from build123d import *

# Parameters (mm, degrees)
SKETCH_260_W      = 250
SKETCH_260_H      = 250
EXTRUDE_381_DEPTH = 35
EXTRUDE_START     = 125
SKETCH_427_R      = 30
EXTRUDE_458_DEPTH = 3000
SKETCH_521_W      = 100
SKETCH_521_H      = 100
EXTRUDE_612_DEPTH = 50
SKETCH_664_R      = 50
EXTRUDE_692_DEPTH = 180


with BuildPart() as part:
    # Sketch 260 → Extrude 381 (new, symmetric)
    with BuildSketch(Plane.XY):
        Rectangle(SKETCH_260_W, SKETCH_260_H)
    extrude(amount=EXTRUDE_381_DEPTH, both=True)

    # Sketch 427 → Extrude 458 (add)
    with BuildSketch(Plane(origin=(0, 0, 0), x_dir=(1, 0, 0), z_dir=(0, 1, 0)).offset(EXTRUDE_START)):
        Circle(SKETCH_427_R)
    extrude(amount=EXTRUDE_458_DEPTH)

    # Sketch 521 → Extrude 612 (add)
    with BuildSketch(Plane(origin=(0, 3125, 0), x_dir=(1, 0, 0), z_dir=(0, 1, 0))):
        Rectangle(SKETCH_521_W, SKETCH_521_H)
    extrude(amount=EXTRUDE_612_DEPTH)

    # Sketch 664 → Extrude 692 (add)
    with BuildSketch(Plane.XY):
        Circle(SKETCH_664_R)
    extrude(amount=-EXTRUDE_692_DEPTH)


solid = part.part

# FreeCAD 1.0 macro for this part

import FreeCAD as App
import Part
import Sketcher

doc = App.newDocument("Part")
body = doc.addObject("PartDesign::Body", "Body")

sketch1 = body.newObject("Sketcher::SketchObject", "Sketch")
sketch1.AttachmentSupport = (doc.getObject("XY_Plane"), [""])
sketch1.MapMode = "FlatFace"
sketch1.addGeometry(Part.LineSegment(App.Vector(-125, 125, 0), App.Vector(-125, -125, 0)), False)
sketch1.addGeometry(Part.LineSegment(App.Vector(-125, -125, 0), App.Vector(125, -125, 0)), False)
sketch1.addGeometry(Part.LineSegment(App.Vector(125, -125, 0), App.Vector(125, 125, 0)), False)
sketch1.addGeometry(Part.LineSegment(App.Vector(125, 125, 0), App.Vector(-125, 125, 0)), False)
sketch1.addConstraint(Sketcher.Constraint("Coincident", 0, 2, 1, 1))
sketch1.addConstraint(Sketcher.Constraint("Coincident", 1, 2, 2, 1))
sketch1.addConstraint(Sketcher.Constraint("Coincident", 2, 2, 3, 1))
sketch1.addConstraint(Sketcher.Constraint("Coincident", 3, 2, 0, 1))
sketch1.addConstraint(Sketcher.Constraint("Vertical", 0))
sketch1.addConstraint(Sketcher.Constraint("Horizontal", 1))
sketch1.addConstraint(Sketcher.Constraint("Vertical", 2))
sketch1.addConstraint(Sketcher.Constraint("Horizontal", 3))
sketch1.addConstraint(Sketcher.Constraint("Symmetric", 0, 2, 2, 2, -1, 1))
sketch1.addConstraint(Sketcher.Constraint("Equal", 3, 0))
sketch1.addConstraint(Sketcher.Constraint("DistanceX", 1, 1, 1, 2, 250.0))
pad1 = body.newObject("PartDesign::Pad", "Pad")
pad1.Profile = sketch1
pad1.Length = 70
pad1.Midplane = True

sketch2 = body.newObject("Sketcher::SketchObject", "Sketch001")
sketch2.AttachmentSupport = (doc.getObject("XZ_Plane"), [""])
sketch2.MapMode = "FlatFace"
sketch2.AttachmentOffset = App.Placement(App.Vector(0, 0, -125), App.Rotation())
sketch2.addGeometry(Part.Circle(App.Vector(0, 0, 0), App.Vector(0, 0, 1), 30), False)
sketch2.addConstraint(Sketcher.Constraint("Coincident", 0, 3, -1, 1))
sketch2.addConstraint(Sketcher.Constraint("Diameter", 0, 60.0))
pad2 = body.newObject("PartDesign::Pad", "Pad001")
pad2.Profile = sketch2
pad2.Length = 3000
pad2.Reversed = True

sketch3 = body.newObject("Sketcher::SketchObject", "Sketch002")
sketch3.AttachmentSupport = (doc.getObject("XZ_Plane"), [""])
sketch3.MapMode = "FlatFace"
sketch3.AttachmentOffset = App.Placement(App.Vector(0, 0, -3125), App.Rotation())
sketch3.addGeometry(Part.LineSegment(App.Vector(-50, -50, 0), App.Vector(-50, 50, 0)), False)
sketch3.addGeometry(Part.LineSegment(App.Vector(-50, 50, 0), App.Vector(50, 50, 0)), False)
sketch3.addGeometry(Part.LineSegment(App.Vector(50, 50, 0), App.Vector(50, -50, 0)), False)
sketch3.addGeometry(Part.LineSegment(App.Vector(50, -50, 0), App.Vector(-50, -50, 0)), False)
sketch3.addConstraint(Sketcher.Constraint("Coincident", 0, 2, 1, 1))
sketch3.addConstraint(Sketcher.Constraint("Coincident", 1, 2, 2, 1))
sketch3.addConstraint(Sketcher.Constraint("Coincident", 2, 2, 3, 1))
sketch3.addConstraint(Sketcher.Constraint("Coincident", 3, 2, 0, 1))
sketch3.addConstraint(Sketcher.Constraint("Vertical", 0))
sketch3.addConstraint(Sketcher.Constraint("Horizontal", 1))
sketch3.addConstraint(Sketcher.Constraint("Vertical", 2))
sketch3.addConstraint(Sketcher.Constraint("Horizontal", 3))
sketch3.addConstraint(Sketcher.Constraint("Symmetric", 0, 2, 2, 2, -1, 1))
sketch3.addConstraint(Sketcher.Constraint("Equal", 3, 0))
sketch3.addConstraint(Sketcher.Constraint("DistanceX", 1, 1, 1, 2, 100.0))
pad3 = body.newObject("PartDesign::Pad", "Pad002")
pad3.Profile = sketch3
pad3.Length = 50
pad3.Reversed = True

sketch4 = body.newObject("Sketcher::SketchObject", "Sketch003")
sketch4.AttachmentSupport = (doc.getObject("XY_Plane"), [""])
sketch4.MapMode = "FlatFace"
sketch4.addGeometry(Part.Circle(App.Vector(0, 0, 0), App.Vector(0, 0, 1), 50), False)
sketch4.addConstraint(Sketcher.Constraint("Coincident", 0, 3, -1, 1))
sketch4.addConstraint(Sketcher.Constraint("Diameter", 0, 100.0))
pad4 = body.newObject("PartDesign::Pad", "Pad003")
pad4.Profile = sketch4
pad4.Length = 180
pad4.Reversed = True

doc.recompute()
